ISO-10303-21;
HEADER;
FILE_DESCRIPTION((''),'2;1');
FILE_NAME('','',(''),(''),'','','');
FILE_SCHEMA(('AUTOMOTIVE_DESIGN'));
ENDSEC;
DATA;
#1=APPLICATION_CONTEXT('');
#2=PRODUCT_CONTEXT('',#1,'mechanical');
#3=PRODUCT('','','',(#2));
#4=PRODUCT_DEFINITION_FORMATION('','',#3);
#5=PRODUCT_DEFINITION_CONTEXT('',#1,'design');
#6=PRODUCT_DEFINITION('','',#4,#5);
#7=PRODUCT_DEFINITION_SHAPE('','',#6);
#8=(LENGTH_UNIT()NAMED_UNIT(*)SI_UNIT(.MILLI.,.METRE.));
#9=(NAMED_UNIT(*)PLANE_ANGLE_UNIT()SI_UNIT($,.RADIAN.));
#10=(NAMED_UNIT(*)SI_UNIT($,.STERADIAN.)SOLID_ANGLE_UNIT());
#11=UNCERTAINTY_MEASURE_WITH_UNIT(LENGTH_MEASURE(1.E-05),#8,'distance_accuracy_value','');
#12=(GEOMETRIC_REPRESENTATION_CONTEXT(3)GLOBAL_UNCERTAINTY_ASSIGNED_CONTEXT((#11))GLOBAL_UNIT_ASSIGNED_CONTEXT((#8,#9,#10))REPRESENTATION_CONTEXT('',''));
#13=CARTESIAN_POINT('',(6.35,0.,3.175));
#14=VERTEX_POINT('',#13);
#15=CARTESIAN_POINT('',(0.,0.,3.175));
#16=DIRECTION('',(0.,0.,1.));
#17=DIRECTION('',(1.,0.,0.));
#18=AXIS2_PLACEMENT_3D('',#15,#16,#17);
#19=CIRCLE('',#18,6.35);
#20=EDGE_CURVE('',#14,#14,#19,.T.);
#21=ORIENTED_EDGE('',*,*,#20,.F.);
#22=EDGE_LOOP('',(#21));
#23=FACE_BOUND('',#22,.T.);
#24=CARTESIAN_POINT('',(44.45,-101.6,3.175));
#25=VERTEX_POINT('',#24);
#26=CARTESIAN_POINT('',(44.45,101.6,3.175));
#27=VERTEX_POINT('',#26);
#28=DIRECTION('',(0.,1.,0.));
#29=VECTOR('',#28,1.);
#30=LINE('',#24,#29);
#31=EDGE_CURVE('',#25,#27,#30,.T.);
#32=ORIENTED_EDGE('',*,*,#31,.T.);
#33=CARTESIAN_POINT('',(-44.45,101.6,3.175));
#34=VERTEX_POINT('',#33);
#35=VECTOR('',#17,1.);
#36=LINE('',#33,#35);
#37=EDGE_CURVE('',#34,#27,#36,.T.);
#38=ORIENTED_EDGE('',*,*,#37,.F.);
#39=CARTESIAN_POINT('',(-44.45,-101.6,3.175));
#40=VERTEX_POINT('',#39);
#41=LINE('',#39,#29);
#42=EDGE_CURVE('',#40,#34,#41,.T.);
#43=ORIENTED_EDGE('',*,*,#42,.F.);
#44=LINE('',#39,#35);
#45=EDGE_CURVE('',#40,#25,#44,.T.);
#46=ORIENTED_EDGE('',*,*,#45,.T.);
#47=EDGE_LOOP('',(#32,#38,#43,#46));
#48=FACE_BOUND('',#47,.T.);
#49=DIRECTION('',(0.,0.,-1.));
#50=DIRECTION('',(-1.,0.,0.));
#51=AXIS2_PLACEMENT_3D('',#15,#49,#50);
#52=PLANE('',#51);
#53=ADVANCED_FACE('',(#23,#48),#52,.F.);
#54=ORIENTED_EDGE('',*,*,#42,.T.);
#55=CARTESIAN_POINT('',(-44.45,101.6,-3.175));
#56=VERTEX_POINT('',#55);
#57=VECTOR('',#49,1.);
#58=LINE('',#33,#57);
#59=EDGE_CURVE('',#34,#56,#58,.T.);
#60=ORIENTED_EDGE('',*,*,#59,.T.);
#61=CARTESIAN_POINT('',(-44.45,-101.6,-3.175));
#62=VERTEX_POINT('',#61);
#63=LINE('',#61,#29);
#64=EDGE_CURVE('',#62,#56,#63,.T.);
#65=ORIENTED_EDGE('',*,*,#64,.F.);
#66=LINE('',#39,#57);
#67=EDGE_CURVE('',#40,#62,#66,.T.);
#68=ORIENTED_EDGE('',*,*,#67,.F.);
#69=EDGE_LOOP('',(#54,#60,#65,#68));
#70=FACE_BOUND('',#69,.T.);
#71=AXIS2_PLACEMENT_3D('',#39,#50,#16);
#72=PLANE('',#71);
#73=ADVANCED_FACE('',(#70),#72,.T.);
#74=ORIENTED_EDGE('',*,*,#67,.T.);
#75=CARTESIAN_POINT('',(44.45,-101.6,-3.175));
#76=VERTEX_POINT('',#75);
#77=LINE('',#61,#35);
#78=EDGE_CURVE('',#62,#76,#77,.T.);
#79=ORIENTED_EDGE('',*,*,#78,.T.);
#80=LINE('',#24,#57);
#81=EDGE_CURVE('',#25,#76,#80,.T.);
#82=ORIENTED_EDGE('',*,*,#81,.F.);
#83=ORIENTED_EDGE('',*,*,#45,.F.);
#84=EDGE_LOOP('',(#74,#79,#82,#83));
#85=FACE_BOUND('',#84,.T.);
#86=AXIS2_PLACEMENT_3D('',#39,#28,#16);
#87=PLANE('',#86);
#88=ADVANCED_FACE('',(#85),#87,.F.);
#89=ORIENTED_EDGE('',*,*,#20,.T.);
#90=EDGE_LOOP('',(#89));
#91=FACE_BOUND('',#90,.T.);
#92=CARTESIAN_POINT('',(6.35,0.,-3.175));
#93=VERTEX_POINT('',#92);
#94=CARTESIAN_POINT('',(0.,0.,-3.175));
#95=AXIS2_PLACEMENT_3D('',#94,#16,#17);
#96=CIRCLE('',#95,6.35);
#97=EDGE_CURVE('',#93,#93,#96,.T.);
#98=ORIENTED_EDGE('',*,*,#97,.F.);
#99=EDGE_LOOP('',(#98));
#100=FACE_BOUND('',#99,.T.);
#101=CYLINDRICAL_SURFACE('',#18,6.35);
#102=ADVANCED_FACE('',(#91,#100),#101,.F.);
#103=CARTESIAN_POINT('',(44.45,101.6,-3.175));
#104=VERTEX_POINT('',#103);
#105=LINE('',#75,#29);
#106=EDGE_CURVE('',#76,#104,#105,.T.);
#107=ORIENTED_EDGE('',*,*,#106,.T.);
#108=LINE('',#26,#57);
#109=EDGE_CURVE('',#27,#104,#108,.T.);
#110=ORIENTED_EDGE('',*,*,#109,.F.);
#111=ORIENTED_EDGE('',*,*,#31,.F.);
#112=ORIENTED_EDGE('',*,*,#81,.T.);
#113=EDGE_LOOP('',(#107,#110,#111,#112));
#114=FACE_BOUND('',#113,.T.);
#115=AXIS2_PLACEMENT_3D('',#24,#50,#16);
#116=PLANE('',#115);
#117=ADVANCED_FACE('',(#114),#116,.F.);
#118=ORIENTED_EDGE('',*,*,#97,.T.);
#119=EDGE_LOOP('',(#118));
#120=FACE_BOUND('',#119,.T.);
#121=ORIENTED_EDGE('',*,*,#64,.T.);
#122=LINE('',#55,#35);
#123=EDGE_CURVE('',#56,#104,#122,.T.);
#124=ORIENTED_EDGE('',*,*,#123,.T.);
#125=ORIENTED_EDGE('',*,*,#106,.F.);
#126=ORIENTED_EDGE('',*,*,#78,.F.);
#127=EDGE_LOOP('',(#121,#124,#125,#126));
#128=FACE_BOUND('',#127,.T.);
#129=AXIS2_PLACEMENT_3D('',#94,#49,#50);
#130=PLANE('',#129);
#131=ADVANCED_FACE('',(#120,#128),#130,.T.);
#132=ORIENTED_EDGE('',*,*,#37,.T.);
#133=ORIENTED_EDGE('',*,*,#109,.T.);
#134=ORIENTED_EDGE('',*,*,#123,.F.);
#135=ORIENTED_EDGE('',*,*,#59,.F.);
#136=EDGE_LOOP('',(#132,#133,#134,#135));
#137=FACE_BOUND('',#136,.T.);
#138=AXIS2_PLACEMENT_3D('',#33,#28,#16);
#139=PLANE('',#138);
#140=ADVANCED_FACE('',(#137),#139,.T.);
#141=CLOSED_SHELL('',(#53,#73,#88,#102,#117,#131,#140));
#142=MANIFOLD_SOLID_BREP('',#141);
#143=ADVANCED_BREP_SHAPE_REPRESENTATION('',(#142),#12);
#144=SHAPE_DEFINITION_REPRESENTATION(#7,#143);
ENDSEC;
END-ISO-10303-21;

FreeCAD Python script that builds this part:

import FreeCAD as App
import Part
import Sketcher
from FreeCAD import Vector
Q = App.Units.Quantity


def add_polygon(sketch, points):
    """Adds a closed chain of lines whose ends are joined by coincident constraints."""
    first, n = sketch.GeometryCount, len(points)
    for a, b in zip(points, points[1:] + points[:1]):
        sketch.addGeometry(Part.LineSegment(App.Vector(*a, 0), App.Vector(*b, 0)), False)
    for i in range(n):
        sketch.addConstraint(Sketcher.Constraint("Coincident", first + i, 2, first + (i + 1) % n, 1))

doc = App.newDocument("Part")
body = doc.addObject("PartDesign::Body", "Body")

# Sketch on XY plane
sketch1 = doc.addObject("Sketcher::SketchObject", "Sketch")
body.addObject(sketch1)
sketch1.AttachmentSupport = (doc.XY_Plane, [""])
sketch1.MapMode = "FlatFace"
add_polygon(sketch1, [(-44, 102), (-44, -102), (44, -102), (44, 102)])  # lines 0-3
sketch1.addConstraint([
    Sketcher.Constraint("Vertical", 0),
    Sketcher.Constraint("Horizontal", 1),
    Sketcher.Constraint("Vertical", 2),
    Sketcher.Constraint("Horizontal", 3),
    Sketcher.Constraint("Symmetric", 0, 2, 2, 2, -1, 1),
    Sketcher.Constraint("DistanceY", 0, 2, 0, 1, Q("8 in")),
    Sketcher.Constraint("DistanceX", 1, 1, 1, 2, Q("3.5 in")),
])
pad1 = doc.addObject("PartDesign::Pad", "Pad")
body.addObject(pad1)
pad1.Profile = sketch1
pad1.Length = Q("0.25 in")
pad1.Midplane = True

# Sketch on XY plane
sketch2 = doc.addObject("Sketcher::SketchObject", "Sketch001")
body.addObject(sketch2)
sketch2.AttachmentSupport = (doc.XY_Plane, [""])
sketch2.MapMode = "FlatFace"
sketch2.AttachmentOffset = App.Placement(Vector(0, 0, 0.125 * 25.4), App.Rotation())
sketch2.addGeometry(Part.Circle(Vector(0, 0, 0), Vector(0, 0, 1), 6), False)
sketch2.addConstraint([
    Sketcher.Constraint("Coincident", 0, 3, -1, 1),
    Sketcher.Constraint("Diameter", 0, Q("0.5 in")),
])
doc.recompute()
hole = doc.addObject("PartDesign::Hole", "Hole")
body.addObject(hole)
hole.Profile = sketch2
hole.ThreadType = "None"
hole.Diameter = Q("0.5 in")
hole.DepthType = "ThroughAll"

doc.recompute()
